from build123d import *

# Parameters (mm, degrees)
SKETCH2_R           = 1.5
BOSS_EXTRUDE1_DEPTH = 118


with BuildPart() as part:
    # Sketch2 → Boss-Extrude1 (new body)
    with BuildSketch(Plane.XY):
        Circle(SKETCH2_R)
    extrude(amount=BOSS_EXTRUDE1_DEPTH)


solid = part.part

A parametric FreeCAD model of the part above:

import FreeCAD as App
import Part
import Sketcher
from FreeCAD import Vector
Q = App.Units.Quantity

doc = App.newDocument("Part")
body = doc.addObject("PartDesign::Body", "Body")

# Sketch on XY plane
sketch1 = doc.addObject("Sketcher::SketchObject", "Sketch")
body.addObject(sketch1)
sketch1.AttachmentSupport = (doc.XY_Plane, [""])
sketch1.MapMode = "FlatFace"
sketch1.addGeometry(Part.Circle(Vector(0, 0, 0), Vector(0, 0, 1), 1.5), False)
sketch1.addConstraint([
    Sketcher.Constraint("Coincident", 0, 3, -1, 1),
    Sketcher.Constraint("Diameter", 0, Q("3 mm")),
])
pad1 = doc.addObject("PartDesign::Pad", "Pad")
body.addObject(pad1)
pad1.Profile = sketch1
pad1.Length = 118

doc.recompute()
